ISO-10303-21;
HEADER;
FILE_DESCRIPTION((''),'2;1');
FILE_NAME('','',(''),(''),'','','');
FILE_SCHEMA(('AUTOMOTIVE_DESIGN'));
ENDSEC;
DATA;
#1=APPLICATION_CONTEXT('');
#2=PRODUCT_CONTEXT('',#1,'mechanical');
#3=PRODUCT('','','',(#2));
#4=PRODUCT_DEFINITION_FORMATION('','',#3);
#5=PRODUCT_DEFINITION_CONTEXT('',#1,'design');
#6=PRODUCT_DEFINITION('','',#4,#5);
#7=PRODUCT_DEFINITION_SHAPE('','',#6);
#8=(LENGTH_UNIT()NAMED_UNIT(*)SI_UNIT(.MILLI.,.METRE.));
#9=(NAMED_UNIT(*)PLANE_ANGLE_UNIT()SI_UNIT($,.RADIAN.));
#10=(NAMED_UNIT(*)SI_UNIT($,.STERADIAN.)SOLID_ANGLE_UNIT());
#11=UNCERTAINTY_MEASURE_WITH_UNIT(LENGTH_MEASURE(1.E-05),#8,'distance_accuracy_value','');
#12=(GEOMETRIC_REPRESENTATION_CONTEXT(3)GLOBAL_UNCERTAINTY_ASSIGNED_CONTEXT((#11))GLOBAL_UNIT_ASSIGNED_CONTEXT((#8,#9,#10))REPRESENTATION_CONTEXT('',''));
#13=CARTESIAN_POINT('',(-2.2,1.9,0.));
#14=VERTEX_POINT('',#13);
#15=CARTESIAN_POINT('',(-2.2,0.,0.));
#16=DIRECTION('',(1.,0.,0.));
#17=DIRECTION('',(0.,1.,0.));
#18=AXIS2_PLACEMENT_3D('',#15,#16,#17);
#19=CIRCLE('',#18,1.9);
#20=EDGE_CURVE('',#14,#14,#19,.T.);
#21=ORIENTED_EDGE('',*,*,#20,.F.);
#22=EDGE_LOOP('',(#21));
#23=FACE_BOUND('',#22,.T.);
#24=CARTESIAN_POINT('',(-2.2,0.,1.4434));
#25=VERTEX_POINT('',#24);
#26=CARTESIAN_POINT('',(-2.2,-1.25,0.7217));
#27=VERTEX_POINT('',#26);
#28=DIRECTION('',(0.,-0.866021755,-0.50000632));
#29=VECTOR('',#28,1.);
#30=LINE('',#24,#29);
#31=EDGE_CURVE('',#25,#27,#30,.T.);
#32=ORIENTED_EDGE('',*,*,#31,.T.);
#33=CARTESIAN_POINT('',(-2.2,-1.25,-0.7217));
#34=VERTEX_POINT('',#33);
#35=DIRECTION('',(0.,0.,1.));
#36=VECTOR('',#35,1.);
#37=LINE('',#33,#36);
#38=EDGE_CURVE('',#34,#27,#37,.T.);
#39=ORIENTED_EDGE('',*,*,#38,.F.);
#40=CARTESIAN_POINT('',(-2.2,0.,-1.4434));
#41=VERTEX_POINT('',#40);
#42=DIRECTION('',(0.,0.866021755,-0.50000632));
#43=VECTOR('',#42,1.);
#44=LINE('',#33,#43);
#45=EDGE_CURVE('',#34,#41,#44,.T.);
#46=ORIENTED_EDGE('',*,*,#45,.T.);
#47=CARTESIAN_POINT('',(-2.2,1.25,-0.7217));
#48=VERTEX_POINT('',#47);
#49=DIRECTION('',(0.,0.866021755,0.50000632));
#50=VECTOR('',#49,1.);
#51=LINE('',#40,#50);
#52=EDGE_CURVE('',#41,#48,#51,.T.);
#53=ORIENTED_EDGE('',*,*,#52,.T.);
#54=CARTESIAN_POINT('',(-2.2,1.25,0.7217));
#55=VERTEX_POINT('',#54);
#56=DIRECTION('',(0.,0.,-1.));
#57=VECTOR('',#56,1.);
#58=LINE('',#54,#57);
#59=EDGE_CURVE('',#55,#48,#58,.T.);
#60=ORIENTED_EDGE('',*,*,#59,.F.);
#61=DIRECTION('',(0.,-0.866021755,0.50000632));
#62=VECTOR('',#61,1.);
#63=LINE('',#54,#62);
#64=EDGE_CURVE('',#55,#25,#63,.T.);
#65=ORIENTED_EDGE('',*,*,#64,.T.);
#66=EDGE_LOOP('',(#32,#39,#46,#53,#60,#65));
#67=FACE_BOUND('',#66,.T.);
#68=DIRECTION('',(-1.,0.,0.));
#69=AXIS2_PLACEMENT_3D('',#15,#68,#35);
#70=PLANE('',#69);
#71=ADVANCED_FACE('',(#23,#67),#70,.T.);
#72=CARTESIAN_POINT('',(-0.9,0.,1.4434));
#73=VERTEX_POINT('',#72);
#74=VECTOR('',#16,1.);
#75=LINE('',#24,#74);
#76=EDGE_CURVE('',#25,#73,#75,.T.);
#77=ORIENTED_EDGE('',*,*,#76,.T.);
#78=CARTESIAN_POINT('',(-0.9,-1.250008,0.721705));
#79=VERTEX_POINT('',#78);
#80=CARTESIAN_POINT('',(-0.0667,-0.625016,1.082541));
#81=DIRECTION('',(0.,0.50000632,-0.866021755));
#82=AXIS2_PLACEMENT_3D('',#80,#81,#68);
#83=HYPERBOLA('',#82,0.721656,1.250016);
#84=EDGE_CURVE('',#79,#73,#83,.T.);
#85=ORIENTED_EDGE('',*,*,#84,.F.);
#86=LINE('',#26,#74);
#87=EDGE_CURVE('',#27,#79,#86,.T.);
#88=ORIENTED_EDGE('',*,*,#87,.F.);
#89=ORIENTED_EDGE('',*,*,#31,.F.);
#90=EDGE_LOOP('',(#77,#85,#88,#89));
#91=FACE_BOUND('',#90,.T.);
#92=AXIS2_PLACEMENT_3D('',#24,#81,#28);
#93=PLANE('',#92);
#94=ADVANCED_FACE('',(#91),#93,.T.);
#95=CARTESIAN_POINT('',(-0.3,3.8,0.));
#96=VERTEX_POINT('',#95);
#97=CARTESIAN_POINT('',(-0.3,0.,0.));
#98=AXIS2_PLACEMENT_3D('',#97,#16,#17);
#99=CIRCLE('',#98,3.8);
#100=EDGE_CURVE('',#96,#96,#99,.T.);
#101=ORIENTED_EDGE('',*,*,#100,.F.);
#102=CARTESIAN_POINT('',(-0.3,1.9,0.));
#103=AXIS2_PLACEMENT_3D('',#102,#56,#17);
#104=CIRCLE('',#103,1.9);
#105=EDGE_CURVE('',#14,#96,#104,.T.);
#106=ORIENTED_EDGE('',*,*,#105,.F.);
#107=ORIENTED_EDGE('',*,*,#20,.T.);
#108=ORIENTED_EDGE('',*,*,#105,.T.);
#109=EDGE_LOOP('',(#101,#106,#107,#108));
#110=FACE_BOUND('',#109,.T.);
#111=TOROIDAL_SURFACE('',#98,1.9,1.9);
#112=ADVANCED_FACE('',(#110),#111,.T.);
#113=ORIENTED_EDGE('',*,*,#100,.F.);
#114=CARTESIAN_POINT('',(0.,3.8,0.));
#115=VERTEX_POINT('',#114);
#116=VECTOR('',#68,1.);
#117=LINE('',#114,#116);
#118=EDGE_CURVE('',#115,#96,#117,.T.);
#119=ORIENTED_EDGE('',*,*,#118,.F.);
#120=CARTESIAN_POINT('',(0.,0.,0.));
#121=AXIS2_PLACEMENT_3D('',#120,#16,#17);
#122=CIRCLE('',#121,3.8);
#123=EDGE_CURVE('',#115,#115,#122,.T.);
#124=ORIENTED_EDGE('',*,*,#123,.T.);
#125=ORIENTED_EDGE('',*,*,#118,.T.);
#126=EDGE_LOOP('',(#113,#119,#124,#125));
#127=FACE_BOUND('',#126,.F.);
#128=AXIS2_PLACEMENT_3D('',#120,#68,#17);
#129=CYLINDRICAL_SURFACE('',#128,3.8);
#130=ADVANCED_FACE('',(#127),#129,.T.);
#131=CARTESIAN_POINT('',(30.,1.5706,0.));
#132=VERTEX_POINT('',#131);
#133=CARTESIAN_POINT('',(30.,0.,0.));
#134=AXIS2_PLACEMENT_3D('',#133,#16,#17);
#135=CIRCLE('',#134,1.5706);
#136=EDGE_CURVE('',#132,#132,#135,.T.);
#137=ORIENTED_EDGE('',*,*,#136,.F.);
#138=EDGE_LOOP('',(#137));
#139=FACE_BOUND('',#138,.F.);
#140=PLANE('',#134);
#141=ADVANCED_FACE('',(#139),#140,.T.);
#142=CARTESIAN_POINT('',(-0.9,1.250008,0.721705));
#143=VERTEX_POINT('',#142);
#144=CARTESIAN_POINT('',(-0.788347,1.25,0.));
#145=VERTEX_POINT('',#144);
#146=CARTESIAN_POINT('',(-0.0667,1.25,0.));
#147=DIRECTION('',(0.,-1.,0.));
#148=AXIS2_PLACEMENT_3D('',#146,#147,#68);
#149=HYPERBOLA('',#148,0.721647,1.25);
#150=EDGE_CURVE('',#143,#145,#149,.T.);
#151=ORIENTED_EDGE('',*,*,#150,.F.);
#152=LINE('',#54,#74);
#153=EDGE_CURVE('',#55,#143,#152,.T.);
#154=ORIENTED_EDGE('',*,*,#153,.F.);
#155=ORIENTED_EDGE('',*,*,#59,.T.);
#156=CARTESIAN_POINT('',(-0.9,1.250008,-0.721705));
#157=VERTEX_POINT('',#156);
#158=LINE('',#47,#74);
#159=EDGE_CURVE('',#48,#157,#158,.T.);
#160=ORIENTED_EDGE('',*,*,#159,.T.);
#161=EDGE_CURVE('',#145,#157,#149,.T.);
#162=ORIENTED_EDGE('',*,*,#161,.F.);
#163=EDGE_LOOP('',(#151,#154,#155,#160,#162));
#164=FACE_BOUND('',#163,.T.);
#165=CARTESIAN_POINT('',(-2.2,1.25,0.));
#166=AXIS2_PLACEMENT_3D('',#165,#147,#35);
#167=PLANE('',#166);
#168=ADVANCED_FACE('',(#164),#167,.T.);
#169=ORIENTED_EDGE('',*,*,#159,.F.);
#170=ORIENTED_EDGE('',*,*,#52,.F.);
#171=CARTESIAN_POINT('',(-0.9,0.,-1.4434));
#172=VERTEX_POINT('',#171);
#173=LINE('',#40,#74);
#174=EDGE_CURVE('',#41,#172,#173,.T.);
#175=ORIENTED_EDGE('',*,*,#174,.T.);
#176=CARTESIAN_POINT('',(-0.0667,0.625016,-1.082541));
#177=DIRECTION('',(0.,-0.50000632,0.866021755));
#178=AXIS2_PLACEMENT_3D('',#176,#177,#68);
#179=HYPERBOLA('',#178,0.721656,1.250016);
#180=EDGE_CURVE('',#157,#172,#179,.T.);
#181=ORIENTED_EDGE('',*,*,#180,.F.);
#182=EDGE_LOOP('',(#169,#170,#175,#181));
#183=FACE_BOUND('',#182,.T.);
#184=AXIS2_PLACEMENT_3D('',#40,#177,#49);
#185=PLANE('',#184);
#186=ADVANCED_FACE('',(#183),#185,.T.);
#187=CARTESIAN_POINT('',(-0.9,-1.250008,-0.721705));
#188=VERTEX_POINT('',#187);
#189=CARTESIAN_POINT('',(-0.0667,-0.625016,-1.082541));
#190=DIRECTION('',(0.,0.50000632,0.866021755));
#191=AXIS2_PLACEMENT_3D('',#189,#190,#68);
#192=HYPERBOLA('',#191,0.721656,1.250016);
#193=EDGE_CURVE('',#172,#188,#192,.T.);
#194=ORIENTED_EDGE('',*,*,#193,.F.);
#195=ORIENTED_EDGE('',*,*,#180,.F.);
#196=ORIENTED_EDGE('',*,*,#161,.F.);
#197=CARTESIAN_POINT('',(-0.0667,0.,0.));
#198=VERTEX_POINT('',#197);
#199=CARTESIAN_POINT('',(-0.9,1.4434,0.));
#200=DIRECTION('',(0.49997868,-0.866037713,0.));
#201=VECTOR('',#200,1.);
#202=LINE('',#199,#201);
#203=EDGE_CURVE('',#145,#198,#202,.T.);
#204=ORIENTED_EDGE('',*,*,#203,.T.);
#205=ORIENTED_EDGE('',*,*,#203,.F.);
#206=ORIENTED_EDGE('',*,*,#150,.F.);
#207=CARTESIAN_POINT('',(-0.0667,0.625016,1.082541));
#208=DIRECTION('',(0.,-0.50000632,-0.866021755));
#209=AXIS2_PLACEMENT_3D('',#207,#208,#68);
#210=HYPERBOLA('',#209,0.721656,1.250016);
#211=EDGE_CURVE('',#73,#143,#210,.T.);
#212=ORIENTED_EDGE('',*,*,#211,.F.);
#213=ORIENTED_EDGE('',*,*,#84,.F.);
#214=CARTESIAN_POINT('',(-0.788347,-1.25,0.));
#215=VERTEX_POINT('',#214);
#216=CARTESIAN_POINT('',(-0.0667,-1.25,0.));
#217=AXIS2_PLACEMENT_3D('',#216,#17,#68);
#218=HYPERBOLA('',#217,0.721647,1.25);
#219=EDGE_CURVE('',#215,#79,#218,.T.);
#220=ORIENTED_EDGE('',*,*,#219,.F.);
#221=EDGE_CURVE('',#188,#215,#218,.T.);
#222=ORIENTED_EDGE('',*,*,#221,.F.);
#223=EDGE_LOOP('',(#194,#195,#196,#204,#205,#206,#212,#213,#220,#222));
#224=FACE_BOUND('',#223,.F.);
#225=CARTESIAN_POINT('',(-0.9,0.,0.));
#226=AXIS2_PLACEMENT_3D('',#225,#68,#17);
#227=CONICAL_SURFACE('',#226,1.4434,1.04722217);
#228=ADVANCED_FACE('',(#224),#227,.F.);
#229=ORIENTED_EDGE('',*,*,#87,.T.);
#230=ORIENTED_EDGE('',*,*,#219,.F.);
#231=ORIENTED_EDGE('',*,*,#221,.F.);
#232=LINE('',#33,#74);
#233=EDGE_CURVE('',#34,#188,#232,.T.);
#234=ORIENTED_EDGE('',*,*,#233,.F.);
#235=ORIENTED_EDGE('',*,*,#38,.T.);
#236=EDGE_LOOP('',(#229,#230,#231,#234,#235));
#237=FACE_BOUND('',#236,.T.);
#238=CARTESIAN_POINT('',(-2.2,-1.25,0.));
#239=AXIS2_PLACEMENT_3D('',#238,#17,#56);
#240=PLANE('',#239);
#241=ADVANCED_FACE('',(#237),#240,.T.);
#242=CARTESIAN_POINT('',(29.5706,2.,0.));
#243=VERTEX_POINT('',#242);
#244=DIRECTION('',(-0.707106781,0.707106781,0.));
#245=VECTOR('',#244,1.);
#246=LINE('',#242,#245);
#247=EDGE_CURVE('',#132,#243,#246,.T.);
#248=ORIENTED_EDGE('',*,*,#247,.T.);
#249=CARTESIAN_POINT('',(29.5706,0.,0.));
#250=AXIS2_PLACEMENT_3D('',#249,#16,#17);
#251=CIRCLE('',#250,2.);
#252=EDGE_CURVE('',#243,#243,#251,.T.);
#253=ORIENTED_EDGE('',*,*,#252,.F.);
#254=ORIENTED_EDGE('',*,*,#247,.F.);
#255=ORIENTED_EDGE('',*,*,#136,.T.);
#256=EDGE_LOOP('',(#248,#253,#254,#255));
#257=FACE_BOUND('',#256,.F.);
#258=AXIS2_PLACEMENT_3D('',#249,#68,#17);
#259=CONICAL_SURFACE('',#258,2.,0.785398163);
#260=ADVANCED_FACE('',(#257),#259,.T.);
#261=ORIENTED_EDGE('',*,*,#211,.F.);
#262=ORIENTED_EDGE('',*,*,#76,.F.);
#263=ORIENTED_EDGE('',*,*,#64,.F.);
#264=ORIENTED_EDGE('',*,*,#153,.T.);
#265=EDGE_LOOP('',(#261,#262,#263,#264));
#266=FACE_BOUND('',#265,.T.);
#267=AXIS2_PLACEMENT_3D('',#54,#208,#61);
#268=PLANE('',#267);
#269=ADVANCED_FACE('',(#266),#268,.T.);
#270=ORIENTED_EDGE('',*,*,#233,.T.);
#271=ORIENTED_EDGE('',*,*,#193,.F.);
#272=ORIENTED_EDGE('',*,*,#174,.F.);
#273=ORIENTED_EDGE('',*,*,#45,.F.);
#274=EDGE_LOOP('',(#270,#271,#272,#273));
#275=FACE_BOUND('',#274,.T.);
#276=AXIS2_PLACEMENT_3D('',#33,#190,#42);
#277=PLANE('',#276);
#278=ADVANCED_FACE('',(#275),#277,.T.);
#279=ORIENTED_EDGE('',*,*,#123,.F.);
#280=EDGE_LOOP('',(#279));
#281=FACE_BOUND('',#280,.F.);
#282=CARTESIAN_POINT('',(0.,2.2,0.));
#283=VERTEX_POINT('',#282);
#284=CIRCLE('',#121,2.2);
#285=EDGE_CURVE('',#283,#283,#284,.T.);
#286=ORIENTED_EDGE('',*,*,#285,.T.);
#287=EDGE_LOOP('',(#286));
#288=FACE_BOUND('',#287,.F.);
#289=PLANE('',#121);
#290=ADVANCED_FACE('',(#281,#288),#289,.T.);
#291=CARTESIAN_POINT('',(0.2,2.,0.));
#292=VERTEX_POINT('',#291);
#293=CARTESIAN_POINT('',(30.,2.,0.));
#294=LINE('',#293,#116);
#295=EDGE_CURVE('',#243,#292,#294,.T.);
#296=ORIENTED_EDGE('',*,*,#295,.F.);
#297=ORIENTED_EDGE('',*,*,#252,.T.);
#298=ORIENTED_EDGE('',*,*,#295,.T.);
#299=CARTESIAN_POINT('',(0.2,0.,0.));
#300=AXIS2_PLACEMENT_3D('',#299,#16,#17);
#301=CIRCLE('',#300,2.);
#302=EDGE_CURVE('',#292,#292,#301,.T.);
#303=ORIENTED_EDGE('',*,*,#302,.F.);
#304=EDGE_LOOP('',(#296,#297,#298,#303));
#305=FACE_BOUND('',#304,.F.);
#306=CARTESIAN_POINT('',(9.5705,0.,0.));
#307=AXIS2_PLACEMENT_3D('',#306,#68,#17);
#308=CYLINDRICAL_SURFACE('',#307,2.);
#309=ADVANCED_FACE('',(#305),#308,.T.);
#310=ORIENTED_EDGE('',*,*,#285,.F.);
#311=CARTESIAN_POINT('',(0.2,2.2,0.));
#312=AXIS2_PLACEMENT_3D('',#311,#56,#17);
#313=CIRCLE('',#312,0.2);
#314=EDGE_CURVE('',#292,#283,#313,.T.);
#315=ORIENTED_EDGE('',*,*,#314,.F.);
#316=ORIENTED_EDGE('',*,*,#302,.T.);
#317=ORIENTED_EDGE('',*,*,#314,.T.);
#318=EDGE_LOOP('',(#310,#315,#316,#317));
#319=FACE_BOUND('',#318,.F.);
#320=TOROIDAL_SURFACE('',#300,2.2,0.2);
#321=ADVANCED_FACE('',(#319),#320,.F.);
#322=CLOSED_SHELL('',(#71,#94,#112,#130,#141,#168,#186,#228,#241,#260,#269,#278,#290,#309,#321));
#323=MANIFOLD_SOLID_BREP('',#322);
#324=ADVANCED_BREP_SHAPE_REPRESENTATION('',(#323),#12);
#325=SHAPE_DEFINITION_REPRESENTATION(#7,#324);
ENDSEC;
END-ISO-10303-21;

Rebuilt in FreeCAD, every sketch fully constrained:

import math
import FreeCAD as App
import Part
import Sketcher
Q = App.Units.Quantity


def edges_at(feature, points):
    """Names of the edges that pass closest to the given points."""
    edges = feature.Shape.Edges
    near = lambda p: min(range(len(edges)), key=lambda i: edges[i].distToShape(Part.Vertex(*p))[0])
    return sorted({f"Edge{near(p) + 1}" for p in points})

doc = App.newDocument("Part")
body = doc.addObject("PartDesign::Body", "Body")

# Sketch on XY plane
sketch1 = doc.addObject("Sketcher::SketchObject", "Sketch")
body.addObject(sketch1)
sketch1.AttachmentSupport = (doc.XY_Plane, [""])
sketch1.MapMode = "FlatFace"
sketch1.addGeometry(Part.LineSegment(App.Vector(-0.9, 1.4, 0), App.Vector(-0.1, 0, 0)), False)
sketch1.addGeometry(Part.LineSegment(App.Vector(-0.1, 0, 0), App.Vector(30, 0, 0)), False)
sketch1.addGeometry(Part.LineSegment(App.Vector(30, 0, 0), App.Vector(30, 2, 0)), False)
sketch1.addGeometry(Part.LineSegment(App.Vector(30, 2, 0), App.Vector(0, 2, 0)), False)
sketch1.addGeometry(Part.LineSegment(App.Vector(0, 2, 0), App.Vector(0, 3.8, 0)), False)
sketch1.addGeometry(Part.LineSegment(App.Vector(0, 3.8, 0), App.Vector(-2.2, 3.8, 0)), False)
sketch1.addGeometry(Part.LineSegment(App.Vector(-2.2, 3.8, 0), App.Vector(-2.2, 1.4, 0)), False)
sketch1.addGeometry(Part.LineSegment(App.Vector(-2.2, 1.4, 0), App.Vector(-0.9, 1.4, 0)), False)
sketch1.addConstraint(Sketcher.Constraint("Coincident", 0, 2, 1, 1))
sketch1.addConstraint(Sketcher.Constraint("Coincident", 1, 2, 2, 1))
sketch1.addConstraint(Sketcher.Constraint("Coincident", 2, 2, 3, 1))
sketch1.addConstraint(Sketcher.Constraint("Coincident", 3, 2, 4, 1))
sketch1.addConstraint(Sketcher.Constraint("Coincident", 4, 2, 5, 1))
sketch1.addConstraint(Sketcher.Constraint("Coincident", 5, 2, 6, 1))
sketch1.addConstraint(Sketcher.Constraint("Coincident", 6, 2, 7, 1))
sketch1.addConstraint(Sketcher.Constraint("Coincident", 7, 2, 0, 1))
sketch1.addConstraint(Sketcher.Constraint("Horizontal", 1))
sketch1.addConstraint(Sketcher.Constraint("Vertical", 2))
sketch1.addConstraint(Sketcher.Constraint("Horizontal", 3))
sketch1.addConstraint(Sketcher.Constraint("Vertical", 4))
sketch1.addConstraint(Sketcher.Constraint("Horizontal", 5))
sketch1.addConstraint(Sketcher.Constraint("Vertical", 6))
sketch1.addConstraint(Sketcher.Constraint("Horizontal", 7))
sketch1.addConstraint(Sketcher.Constraint("PointOnObject", 0, 2, -1))
sketch1.addConstraint(Sketcher.Constraint("PointOnObject", 3, 2, -2))
sketch1.addConstraint(Sketcher.Constraint("DistanceX", 3, 2, 3, 1, Q("30 mm")))
sketch1.addConstraint(Sketcher.Constraint("DistanceX", 5, 2, 5, 1, Q("2.2 mm")))
sketch1.addConstraint(Sketcher.Constraint("DistanceX", 7, 1, 7, 2, Q("1.3 mm")))
sketch1.addConstraint(Sketcher.Constraint("DistanceY", 2, 1, 2, 2, Q("2 mm")))
sketch1.addConstraint(Sketcher.Constraint("DistanceY", 4, 1, 4, 2, Q("1.8 mm")))
sketch1.addConstraint(Sketcher.Constraint("DistanceX", 1, 1, 1, 2, Q("30.0667 mm")))
sketch1.addConstraint(Sketcher.Constraint("DistanceY", 6, 2, 6, 1, Q("2.3566 mm")))
revolution = doc.addObject("PartDesign::Revolution", "Revolution")
body.addObject(revolution)
revolution.Profile = sketch1
revolution.ReferenceAxis = (sketch1, ["H_Axis"])
revolution.Angle = 360

# Sketch on YZ plane
sketch2 = doc.addObject("Sketcher::SketchObject", "Sketch001")
body.addObject(sketch2)
sketch2.AttachmentSupport = (doc.YZ_Plane, [""])
sketch2.MapMode = "FlatFace"
sketch2.AttachmentOffset = App.Placement(App.Vector(0, 0, -2.2), App.Rotation())
sketch2.addGeometry(Part.LineSegment(App.Vector(1.2, 0.7, 0), App.Vector(0, 1.4, 0)), False)
sketch2.addGeometry(Part.ArcOfCircle(Part.Circle(App.Vector(0, 0, 0), App.Vector(0, 0, 1), 1.4), math.radians(30), math.radians(90)), False)
sketch2.addGeometry(Part.ArcOfCircle(Part.Circle(App.Vector(0, 0, 0), App.Vector(0, 0, 1), 1.4), math.radians(90), math.radians(150)), False)
sketch2.addGeometry(Part.LineSegment(App.Vector(0, 1.4, 0), App.Vector(-1.2, 0.7, 0)), False)
sketch2.addGeometry(Part.ArcOfCircle(Part.Circle(App.Vector(0, 0, 0), App.Vector(0, 0, 1), 1.4), math.radians(-30), math.radians(30)), False)
sketch2.addGeometry(Part.LineSegment(App.Vector(1.2, 0.7, 0), App.Vector(1.2, -0.7, 0)), False)
sketch2.addGeometry(Part.LineSegment(App.Vector(-1.2, 0.7, 0), App.Vector(-1.2, -0.7, 0)), False)
sketch2.addGeometry(Part.ArcOfCircle(Part.Circle(App.Vector(0, 0, 0), App.Vector(0, 0, 1), 1.4), math.radians(150), math.radians(210)), False)
sketch2.addGeometry(Part.LineSegment(App.Vector(-1.2, -0.7, 0), App.Vector(0, -1.4, 0)), False)
sketch2.addGeometry(Part.ArcOfCircle(Part.Circle(App.Vector(0, 0, 0), App.Vector(0, 0, 1), 1.4), math.radians(-150), math.radians(-90)), False)
sketch2.addGeometry(Part.ArcOfCircle(Part.Circle(App.Vector(0, 0, 0), App.Vector(0, 0, 1), 1.4), math.radians(-90), math.radians(-30)), False)
sketch2.addGeometry(Part.LineSegment(App.Vector(0, -1.4, 0), App.Vector(1.2, -0.7, 0)), False)
sketch2.addConstraint(Sketcher.Constraint("Coincident", 0, 1, 1, 1))
sketch2.addConstraint(Sketcher.Constraint("Coincident", 1, 2, 0, 2))
sketch2.addConstraint(Sketcher.Constraint("Coincident", 2, 1, 3, 1))
sketch2.addConstraint(Sketcher.Constraint("Coincident", 3, 2, 2, 2))
sketch2.addConstraint(Sketcher.Constraint("Coincident", 4, 1, 5, 2))
sketch2.addConstraint(Sketcher.Constraint("Coincident", 5, 1, 4, 2))
sketch2.addConstraint(Sketcher.Constraint("Coincident", 6, 1, 7, 1))
sketch2.addConstraint(Sketcher.Constraint("Coincident", 7, 2, 6, 2))
sketch2.addConstraint(Sketcher.Constraint("Coincident", 8, 1, 9, 1))
sketch2.addConstraint(Sketcher.Constraint("Coincident", 9, 2, 8, 2))
sketch2.addConstraint(Sketcher.Constraint("Coincident", 10, 1, 11, 1))
sketch2.addConstraint(Sketcher.Constraint("Coincident", 11, 2, 10, 2))
sketch2.addConstraint(Sketcher.Constraint("Vertical", 5))
sketch2.addConstraint(Sketcher.Constraint("Vertical", 6))
sketch2.addConstraint(Sketcher.Constraint("Coincident", 1, 3, -1, 1))
sketch2.addConstraint(Sketcher.Constraint("Coincident", 2, 3, -1, 1))
sketch2.addConstraint(Sketcher.Constraint("Coincident", 4, 3, -1, 1))
sketch2.addConstraint(Sketcher.Constraint("Coincident", 7, 3, -1, 1))
sketch2.addConstraint(Sketcher.Constraint("Coincident", 9, 3, -1, 1))
sketch2.addConstraint(Sketcher.Constraint("Coincident", 10, 3, -1, 1))
sketch2.addConstraint(Sketcher.Constraint("Coincident", 2, 1, 1, 2))
sketch2.addConstraint(Sketcher.Constraint("Coincident", 5, 1, 0, 1))
sketch2.addConstraint(Sketcher.Constraint("Coincident", 6, 1, 3, 2))
sketch2.addConstraint(Sketcher.Constraint("Coincident", 8, 1, 7, 2))
sketch2.addConstraint(Sketcher.Constraint("Coincident", 10, 1, 9, 2))
sketch2.addConstraint(Sketcher.Constraint("PointOnObject", 1, 2, -2))
sketch2.addConstraint(Sketcher.Constraint("PointOnObject", 9, 2, -2))
sketch2.addConstraint(Sketcher.Constraint("Parallel", 0, 8))
sketch2.addConstraint(Sketcher.Constraint("Parallel", 3, 11))
sketch2.addConstraint(Sketcher.Constraint("Angle", 0, Q("149.9996 deg")))
sketch2.addConstraint(Sketcher.Constraint("Radius", 1, Q("1.4434 mm")))
pad1 = doc.addObject("PartDesign::Pad", "Pad")
body.addObject(pad1)
pad1.Profile = sketch2
pad1.Type = "UpToFirst"
doc.recompute()

fillet = doc.addObject("PartDesign::Fillet", "Fillet")
body.addObject(fillet)
fillet.Base = (pad1, edges_at(pad1, [(-2.2, -3.8, 0)]))
fillet.Radius = 1.9
doc.recompute()

chamfer = doc.addObject("PartDesign::Chamfer", "Chamfer")
body.addObject(chamfer)
chamfer.Base = (fillet, edges_at(fillet, [(30, -2, 0)]))
chamfer.ChamferType = "Two distances"
chamfer.Size = 0.4294
chamfer.Size2 = 0.4294
doc.recompute()

fillet2 = doc.addObject("PartDesign::Fillet", "Fillet001")
body.addObject(fillet2)
fillet2.Base = (chamfer, edges_at(chamfer, [(0, -2, 0)]))
fillet2.Radius = 0.2

doc.recompute()
